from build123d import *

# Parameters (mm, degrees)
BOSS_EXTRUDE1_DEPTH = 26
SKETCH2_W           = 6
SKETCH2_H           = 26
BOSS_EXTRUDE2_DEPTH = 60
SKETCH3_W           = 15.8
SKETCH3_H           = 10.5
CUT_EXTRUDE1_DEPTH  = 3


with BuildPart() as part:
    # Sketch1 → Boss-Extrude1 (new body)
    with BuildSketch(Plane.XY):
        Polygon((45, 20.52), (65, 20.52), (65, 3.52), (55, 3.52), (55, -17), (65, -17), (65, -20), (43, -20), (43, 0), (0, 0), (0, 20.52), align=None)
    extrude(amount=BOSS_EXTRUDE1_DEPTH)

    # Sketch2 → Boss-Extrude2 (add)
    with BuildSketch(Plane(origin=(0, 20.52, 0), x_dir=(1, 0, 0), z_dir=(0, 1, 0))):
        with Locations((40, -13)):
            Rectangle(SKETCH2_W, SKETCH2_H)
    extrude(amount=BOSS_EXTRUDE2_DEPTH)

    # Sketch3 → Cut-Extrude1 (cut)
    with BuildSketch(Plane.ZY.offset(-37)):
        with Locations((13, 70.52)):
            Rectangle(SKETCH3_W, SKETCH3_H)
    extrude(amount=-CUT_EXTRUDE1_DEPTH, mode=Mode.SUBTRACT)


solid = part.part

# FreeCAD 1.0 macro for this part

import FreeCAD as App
import Part
import Sketcher
from FreeCAD import Vector
Q = App.Units.Quantity

doc = App.newDocument("Part")
body = doc.addObject("PartDesign::Body", "Body")

sketch1 = body.newObject("Sketcher::SketchObject", "Sketch")
sketch1.AttachmentSupport = (doc.getObject("XY_Plane"), [""])
sketch1.MapMode = "FlatFace"
sketch1.addGeometry([
    Part.LineSegment(Vector(65, 20.5, 0), Vector(0, 20.5, 0)),
    Part.LineSegment(Vector(0, 20.5, 0), Vector(0, 0, 0)),
    Part.LineSegment(Vector(0, 0, 0), Vector(43, 0, 0)),
    Part.LineSegment(Vector(43, 0, 0), Vector(43, -20, 0)),
    Part.LineSegment(Vector(43, -20, 0), Vector(65, -20, 0)),
    Part.LineSegment(Vector(65, -20, 0), Vector(65, -17, 0)),
    Part.LineSegment(Vector(65, -17, 0), Vector(55, -17, 0)),
    Part.LineSegment(Vector(55, -17, 0), Vector(55, 3.5, 0)),
    Part.LineSegment(Vector(55, 3.5, 0), Vector(65, 3.5, 0)),
    Part.LineSegment(Vector(65, 3.5, 0), Vector(65, 20.5, 0)),
], False)
sketch1.addConstraint([
    Sketcher.Constraint("Coincident", 0, 2, 1, 1),
    Sketcher.Constraint("Coincident", 1, 2, 2, 1),
    Sketcher.Constraint("Coincident", 2, 2, 3, 1),
    Sketcher.Constraint("Coincident", 3, 2, 4, 1),
    Sketcher.Constraint("Coincident", 4, 2, 5, 1),
    Sketcher.Constraint("Coincident", 5, 2, 6, 1),
    Sketcher.Constraint("Coincident", 6, 2, 7, 1),
    Sketcher.Constraint("Coincident", 7, 2, 8, 1),
    Sketcher.Constraint("Coincident", 8, 2, 9, 1),
    Sketcher.Constraint("Coincident", 9, 2, 0, 1),
    Sketcher.Constraint("Horizontal", 0),
    Sketcher.Constraint("Vertical", 1),
    Sketcher.Constraint("Horizontal", 2),
    Sketcher.Constraint("Vertical", 3),
    Sketcher.Constraint("Horizontal", 4),
    Sketcher.Constraint("Vertical", 5),
    Sketcher.Constraint("Horizontal", 6),
    Sketcher.Constraint("Vertical", 7),
    Sketcher.Constraint("Horizontal", 8),
    Sketcher.Constraint("Vertical", 9),
    Sketcher.Constraint("Coincident", 1, 2, -1, 1),
    Sketcher.Constraint("Vertical", 5, 2, 8, 2),
    Sketcher.Constraint("Equal", 1, 7),
    Sketcher.Constraint("DistanceX", 0, 2, 0, 1, Q("65 mm")),
    Sketcher.Constraint("DistanceX", 2, 1, 2, 2, Q("43 mm")),
    Sketcher.Constraint("DistanceX", 6, 2, 6, 1, Q("10 mm")),
    Sketcher.Constraint("DistanceY", 3, 2, 3, 1, Q("20 mm")),
    Sketcher.Constraint("DistanceY", 5, 1, 5, 2, Q("3 mm")),
    Sketcher.Constraint("DistanceY", 1, 2, 1, 1, Q("20.52 mm")),
])
pad1 = body.newObject("PartDesign::Pad", "Pad")
pad1.Profile = sketch1
pad1.Length = 26

sketch2 = body.newObject("Sketcher::SketchObject", "Sketch001")
sketch2.AttachmentSupport = (doc.getObject("XZ_Plane"), [""])
sketch2.MapMode = "FlatFace"
sketch2.AttachmentOffset = App.Placement(Vector(0, 0, -20.52), App.Rotation())
sketch2.addGeometry([
    Part.LineSegment(Vector(37, 0, 0), Vector(37, 26, 0)),
    Part.LineSegment(Vector(37, 26, 0), Vector(43, 26, 0)),
    Part.LineSegment(Vector(43, 26, 0), Vector(43, 0, 0)),
    Part.LineSegment(Vector(43, 0, 0), Vector(37, 0, 0)),
], False)
sketch2.addConstraint([
    Sketcher.Constraint("Coincident", 0, 2, 1, 1),
    Sketcher.Constraint("Coincident", 1, 2, 2, 1),
    Sketcher.Constraint("Coincident", 2, 2, 3, 1),
    Sketcher.Constraint("Coincident", 3, 2, 0, 1),
    Sketcher.Constraint("Vertical", 0),
    Sketcher.Constraint("Horizontal", 1),
    Sketcher.Constraint("Vertical", 2),
    Sketcher.Constraint("Horizontal", 3),
    Sketcher.Constraint("PointOnObject", 2, 2, -1),
    Sketcher.Constraint("DistanceX", 1, 1, 1, 2, Q("6 mm")),
    Sketcher.Constraint("DistanceY", 0, 1, 0, 2, Q("26 mm")),
    Sketcher.Constraint("DistanceX", -1, 1, 0, 2, Q("37 mm")),
])
pad2 = body.newObject("PartDesign::Pad", "Pad001")
pad2.Profile = sketch2
pad2.Length = 60
pad2.Reversed = True

sketch3 = body.newObject("Sketcher::SketchObject", "Sketch002")
sketch3.AttachmentSupport = (doc.getObject("YZ_Plane"), [""])
sketch3.MapMode = "FlatFace"
sketch3.AttachmentOffset = App.Placement(Vector(0, 0, 37), App.Rotation())
sketch3.addGeometry([
    Part.LineSegment(Vector(76, 5, 0), Vector(65, 5, 0)),
    Part.LineSegment(Vector(65, 5, 0), Vector(65, 21, 0)),
    Part.LineSegment(Vector(65, 21, 0), Vector(76, 21, 0)),
    Part.LineSegment(Vector(76, 21, 0), Vector(76, 5, 0)),
], False)
sketch3.addConstraint([
    Sketcher.Constraint("Coincident", 0, 2, 1, 1),
    Sketcher.Constraint("Coincident", 1, 2, 2, 1),
    Sketcher.Constraint("Coincident", 2, 2, 3, 1),
    Sketcher.Constraint("Coincident", 3, 2, 0, 1),
    Sketcher.Constraint("Horizontal", 0),
    Sketcher.Constraint("Vertical", 1),
    Sketcher.Constraint("Horizontal", 2),
    Sketcher.Constraint("Vertical", 3),
    Sketcher.Constraint("DistanceX", 0, 2, 0, 1, Q("10.5 mm")),
    Sketcher.Constraint("DistanceY", 1, 1, 1, 2, Q("15.8 mm")),
    Sketcher.Constraint("DistanceY", -1, 1, 0, 2, Q("5.1 mm")),
    Sketcher.Constraint("DistanceX", -1, 1, 0, 2, Q("65.27 mm")),
])
pocket1 = body.newObject("PartDesign::Pocket", "Pocket")
pocket1.Profile = sketch3
pocket1.Length = 3
pocket1.Reversed = True

doc.recompute()
